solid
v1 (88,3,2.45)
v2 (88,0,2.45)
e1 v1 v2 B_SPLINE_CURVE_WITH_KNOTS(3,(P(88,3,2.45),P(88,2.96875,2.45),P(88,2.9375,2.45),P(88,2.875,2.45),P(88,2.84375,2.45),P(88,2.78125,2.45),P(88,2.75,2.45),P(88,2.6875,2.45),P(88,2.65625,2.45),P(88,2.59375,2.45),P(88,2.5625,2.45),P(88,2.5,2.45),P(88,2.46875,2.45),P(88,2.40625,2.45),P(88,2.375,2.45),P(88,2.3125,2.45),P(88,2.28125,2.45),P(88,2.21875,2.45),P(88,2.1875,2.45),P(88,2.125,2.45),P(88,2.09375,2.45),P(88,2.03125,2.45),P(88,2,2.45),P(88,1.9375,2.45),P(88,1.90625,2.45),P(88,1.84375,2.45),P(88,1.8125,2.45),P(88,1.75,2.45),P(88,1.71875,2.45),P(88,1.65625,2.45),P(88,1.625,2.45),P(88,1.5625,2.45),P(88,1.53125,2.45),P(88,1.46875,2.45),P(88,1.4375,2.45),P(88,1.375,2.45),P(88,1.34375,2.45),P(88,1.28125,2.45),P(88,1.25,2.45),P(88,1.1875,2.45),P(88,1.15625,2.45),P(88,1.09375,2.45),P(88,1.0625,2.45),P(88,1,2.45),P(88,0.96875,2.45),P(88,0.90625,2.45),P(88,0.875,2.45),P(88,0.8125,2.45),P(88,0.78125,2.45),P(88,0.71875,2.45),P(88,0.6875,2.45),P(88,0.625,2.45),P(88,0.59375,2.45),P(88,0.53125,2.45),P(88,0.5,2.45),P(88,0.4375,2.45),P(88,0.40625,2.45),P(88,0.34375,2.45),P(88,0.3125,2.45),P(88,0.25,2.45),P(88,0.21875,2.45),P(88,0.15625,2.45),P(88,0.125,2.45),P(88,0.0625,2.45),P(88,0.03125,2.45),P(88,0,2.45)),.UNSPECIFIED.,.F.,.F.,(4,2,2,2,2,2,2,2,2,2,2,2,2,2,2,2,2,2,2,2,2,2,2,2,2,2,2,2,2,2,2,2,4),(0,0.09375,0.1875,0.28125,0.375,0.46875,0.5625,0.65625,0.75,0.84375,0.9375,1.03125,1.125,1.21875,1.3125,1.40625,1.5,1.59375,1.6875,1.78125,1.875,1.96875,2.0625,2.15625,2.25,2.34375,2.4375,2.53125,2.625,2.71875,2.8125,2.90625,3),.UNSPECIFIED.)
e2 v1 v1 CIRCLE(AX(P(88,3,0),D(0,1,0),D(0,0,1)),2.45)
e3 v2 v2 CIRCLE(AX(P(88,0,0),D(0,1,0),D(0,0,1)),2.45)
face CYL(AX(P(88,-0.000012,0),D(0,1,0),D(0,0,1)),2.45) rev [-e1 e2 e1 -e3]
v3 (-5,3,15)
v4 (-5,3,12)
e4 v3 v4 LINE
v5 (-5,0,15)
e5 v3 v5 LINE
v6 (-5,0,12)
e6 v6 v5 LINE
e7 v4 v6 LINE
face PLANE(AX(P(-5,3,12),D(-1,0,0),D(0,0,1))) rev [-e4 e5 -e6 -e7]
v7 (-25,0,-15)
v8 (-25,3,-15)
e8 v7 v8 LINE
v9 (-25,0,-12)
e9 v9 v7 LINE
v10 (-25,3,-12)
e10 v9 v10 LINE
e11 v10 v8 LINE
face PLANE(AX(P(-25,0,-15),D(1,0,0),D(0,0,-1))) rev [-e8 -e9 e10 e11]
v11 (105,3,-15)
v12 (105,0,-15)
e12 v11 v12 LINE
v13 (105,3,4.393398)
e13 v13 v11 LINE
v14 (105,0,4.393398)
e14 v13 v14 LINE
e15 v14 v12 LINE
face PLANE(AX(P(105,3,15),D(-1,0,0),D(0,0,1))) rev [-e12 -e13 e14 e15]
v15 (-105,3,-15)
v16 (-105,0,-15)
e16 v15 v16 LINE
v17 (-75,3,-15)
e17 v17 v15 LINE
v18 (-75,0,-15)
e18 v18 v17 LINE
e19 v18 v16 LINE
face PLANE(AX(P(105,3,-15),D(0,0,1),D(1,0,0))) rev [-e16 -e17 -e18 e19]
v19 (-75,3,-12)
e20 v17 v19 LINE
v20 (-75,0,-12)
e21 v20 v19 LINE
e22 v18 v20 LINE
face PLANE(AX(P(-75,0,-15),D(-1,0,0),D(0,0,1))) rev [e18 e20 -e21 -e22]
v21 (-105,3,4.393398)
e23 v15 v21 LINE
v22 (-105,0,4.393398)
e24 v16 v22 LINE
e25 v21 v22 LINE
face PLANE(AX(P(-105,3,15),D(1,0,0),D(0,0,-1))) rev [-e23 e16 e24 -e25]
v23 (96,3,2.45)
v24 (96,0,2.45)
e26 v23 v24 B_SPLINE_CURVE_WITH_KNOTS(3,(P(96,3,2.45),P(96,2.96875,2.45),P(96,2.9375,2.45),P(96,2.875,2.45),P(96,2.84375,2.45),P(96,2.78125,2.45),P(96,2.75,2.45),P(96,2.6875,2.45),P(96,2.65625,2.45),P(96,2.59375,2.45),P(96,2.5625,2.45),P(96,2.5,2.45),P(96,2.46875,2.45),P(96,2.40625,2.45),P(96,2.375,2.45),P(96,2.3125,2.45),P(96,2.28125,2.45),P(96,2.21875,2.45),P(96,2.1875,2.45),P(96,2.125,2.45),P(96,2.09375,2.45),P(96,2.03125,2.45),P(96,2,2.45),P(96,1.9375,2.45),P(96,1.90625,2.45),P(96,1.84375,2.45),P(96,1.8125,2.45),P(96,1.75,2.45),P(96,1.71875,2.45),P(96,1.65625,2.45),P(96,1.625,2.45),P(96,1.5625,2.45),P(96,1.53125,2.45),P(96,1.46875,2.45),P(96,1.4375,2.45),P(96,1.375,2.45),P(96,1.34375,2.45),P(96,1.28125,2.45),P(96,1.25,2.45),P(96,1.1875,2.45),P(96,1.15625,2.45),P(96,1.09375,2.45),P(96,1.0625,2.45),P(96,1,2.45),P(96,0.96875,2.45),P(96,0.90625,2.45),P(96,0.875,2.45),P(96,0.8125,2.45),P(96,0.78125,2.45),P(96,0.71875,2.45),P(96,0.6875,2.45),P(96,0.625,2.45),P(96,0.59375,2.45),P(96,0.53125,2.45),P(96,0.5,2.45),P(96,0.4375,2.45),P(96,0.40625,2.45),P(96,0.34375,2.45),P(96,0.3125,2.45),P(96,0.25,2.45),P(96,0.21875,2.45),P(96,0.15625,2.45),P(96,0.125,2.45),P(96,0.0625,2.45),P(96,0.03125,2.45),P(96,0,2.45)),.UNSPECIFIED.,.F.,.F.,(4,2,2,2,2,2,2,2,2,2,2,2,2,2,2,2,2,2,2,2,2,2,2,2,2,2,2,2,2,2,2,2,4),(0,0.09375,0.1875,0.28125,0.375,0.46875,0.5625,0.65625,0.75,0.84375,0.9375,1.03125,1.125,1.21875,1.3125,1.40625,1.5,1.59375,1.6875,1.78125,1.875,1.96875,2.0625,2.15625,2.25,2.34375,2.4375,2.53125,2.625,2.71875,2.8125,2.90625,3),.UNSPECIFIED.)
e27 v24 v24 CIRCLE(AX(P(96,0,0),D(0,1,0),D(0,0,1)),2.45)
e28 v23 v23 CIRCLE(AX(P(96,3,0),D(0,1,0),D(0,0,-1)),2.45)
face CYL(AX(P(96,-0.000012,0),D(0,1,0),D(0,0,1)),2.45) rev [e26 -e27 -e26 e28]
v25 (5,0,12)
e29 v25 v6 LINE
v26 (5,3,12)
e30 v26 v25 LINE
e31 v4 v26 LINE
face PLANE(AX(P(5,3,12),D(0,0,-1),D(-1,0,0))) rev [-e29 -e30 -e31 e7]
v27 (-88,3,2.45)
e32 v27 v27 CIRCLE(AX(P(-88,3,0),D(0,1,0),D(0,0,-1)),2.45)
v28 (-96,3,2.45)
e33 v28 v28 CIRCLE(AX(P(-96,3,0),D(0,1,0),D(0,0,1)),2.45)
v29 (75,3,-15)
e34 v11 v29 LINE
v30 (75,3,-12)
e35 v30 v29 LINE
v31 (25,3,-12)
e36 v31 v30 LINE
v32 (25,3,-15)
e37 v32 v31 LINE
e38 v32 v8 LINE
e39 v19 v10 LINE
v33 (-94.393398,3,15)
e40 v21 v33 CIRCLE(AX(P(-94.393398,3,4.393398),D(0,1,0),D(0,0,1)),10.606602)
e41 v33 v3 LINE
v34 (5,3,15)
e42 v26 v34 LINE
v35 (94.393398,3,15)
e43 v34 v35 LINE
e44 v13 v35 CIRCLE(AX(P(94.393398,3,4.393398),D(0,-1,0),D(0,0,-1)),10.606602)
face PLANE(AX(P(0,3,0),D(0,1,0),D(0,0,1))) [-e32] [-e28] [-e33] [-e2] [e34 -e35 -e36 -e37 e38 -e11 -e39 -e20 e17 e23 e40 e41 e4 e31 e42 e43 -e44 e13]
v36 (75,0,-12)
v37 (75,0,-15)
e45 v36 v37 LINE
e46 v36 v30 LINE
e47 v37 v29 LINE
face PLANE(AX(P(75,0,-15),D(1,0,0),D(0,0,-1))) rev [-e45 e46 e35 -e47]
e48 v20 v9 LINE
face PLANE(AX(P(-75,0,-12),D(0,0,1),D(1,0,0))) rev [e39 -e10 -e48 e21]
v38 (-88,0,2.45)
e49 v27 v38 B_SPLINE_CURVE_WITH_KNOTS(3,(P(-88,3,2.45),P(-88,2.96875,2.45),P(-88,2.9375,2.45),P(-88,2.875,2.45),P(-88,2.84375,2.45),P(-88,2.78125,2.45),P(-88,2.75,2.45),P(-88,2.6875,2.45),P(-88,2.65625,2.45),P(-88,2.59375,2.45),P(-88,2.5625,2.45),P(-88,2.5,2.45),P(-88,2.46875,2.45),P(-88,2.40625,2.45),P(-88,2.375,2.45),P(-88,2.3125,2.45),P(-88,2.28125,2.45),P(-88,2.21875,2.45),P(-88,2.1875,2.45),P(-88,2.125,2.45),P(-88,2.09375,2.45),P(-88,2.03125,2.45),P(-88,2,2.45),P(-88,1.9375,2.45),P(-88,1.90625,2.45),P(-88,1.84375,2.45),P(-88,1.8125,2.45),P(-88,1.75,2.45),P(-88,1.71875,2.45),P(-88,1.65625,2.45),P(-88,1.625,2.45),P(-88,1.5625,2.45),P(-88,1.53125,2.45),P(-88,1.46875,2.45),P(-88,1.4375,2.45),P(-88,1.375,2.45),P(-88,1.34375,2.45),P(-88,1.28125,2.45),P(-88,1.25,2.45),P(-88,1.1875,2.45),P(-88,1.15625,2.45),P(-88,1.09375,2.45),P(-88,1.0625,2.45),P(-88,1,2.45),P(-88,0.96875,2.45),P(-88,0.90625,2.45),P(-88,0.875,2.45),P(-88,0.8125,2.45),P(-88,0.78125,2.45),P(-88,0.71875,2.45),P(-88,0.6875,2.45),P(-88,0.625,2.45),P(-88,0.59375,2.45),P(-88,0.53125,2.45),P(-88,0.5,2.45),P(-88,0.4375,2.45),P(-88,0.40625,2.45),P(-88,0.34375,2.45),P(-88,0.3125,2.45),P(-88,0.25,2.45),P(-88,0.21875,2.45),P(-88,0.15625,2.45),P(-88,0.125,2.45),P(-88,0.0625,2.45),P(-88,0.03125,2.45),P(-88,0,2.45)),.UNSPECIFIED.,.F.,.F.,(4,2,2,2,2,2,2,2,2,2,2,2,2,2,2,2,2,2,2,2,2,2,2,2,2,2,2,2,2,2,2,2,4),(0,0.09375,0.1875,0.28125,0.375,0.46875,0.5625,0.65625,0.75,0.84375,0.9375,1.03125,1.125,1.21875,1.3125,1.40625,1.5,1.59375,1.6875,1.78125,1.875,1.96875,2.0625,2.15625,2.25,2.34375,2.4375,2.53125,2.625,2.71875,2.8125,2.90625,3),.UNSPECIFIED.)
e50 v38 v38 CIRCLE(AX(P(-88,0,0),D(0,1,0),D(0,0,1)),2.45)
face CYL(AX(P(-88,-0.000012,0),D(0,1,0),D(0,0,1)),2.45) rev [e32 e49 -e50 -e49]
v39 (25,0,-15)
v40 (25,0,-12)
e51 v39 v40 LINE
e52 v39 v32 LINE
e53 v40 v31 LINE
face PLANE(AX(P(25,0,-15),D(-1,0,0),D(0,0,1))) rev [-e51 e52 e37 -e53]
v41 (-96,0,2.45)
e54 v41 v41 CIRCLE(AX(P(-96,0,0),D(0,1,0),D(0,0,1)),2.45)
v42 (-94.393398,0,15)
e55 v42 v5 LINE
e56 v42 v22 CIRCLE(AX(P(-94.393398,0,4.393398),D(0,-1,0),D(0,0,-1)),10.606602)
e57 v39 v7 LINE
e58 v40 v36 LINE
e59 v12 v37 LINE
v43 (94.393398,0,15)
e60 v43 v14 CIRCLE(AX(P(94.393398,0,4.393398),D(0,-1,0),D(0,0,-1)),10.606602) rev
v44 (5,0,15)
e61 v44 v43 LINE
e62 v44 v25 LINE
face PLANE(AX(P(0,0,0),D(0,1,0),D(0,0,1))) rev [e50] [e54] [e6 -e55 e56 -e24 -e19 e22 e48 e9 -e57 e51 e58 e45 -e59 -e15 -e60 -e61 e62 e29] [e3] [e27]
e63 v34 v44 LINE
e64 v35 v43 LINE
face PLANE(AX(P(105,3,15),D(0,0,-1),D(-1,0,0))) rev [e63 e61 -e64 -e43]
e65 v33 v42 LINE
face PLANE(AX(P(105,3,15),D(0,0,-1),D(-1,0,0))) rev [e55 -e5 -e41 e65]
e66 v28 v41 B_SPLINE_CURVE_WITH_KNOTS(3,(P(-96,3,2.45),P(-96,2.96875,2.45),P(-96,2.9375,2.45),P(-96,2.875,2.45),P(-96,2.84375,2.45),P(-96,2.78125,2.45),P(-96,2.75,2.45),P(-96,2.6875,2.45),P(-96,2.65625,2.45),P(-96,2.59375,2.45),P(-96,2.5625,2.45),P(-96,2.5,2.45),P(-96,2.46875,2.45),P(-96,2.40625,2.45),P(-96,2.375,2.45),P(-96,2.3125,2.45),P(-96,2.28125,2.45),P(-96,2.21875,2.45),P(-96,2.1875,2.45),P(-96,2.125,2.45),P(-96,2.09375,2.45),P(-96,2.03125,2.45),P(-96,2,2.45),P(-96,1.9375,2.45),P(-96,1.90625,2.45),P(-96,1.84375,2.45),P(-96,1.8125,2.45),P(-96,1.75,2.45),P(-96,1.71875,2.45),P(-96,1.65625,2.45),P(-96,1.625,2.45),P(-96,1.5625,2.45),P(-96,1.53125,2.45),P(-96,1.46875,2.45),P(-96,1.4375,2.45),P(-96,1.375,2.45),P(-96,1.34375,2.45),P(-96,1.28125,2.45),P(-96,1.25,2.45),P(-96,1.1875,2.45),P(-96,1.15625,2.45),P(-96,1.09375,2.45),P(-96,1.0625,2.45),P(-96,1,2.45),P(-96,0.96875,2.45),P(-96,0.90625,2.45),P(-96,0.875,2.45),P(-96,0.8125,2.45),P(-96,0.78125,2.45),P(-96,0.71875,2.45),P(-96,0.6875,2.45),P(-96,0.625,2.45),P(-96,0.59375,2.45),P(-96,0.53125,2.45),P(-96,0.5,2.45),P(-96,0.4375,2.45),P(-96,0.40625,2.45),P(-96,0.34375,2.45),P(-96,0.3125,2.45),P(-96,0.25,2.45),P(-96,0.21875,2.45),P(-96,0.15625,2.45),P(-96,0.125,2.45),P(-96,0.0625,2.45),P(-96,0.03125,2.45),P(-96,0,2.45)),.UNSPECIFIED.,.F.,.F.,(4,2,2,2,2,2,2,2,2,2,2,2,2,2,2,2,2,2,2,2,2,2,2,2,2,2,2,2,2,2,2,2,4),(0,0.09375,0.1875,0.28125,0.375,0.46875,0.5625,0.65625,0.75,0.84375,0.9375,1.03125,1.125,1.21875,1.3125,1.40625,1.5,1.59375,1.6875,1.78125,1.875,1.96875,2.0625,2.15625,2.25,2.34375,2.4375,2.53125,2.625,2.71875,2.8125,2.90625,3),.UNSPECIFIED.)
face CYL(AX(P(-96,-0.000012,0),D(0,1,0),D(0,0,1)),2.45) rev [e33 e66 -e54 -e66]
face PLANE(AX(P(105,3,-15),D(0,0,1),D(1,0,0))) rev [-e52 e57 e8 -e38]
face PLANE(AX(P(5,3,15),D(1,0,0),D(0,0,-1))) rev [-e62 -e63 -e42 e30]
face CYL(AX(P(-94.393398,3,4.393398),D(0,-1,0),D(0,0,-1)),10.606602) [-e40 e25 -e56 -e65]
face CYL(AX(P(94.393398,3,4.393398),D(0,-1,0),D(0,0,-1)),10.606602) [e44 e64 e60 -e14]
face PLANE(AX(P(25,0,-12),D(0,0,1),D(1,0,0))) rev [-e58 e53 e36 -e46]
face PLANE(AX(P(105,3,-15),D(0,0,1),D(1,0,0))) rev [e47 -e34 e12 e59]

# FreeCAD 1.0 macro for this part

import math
import FreeCAD as App
import Part
import Sketcher
Q = App.Units.Quantity

doc = App.newDocument("Part")
params = doc.addObject("Spreadsheet::Sheet", "Params")
for row, (alias, value) in enumerate([
    ("sketch1_width", "210 mm"),
    ("sketch1_height", "30 mm"),
    ("pad1_length", "3 mm"),
    ("sketch2_width", "50 mm"),
    ("sketch2_height", "3 mm"),
    ("sketch3_width", "10 mm"),
    ("sketch3_height", "3 mm"),
    ("sketch4_diameter", "4.9 mm"),
], start=1):
    params.set(f"A{row}", alias)
    params.set(f"B{row}", "=" + value)
    params.setAlias(f"B{row}", alias)

body = doc.addObject("PartDesign::Body", "Body")

# Sketch on XZ plane
sketch1 = doc.addObject("Sketcher::SketchObject", "Sketch")
body.addObject(sketch1)
sketch1.AttachmentSupport = (doc.XZ_Plane, [""])
sketch1.MapMode = "FlatFace"
sketch1.addGeometry([
    Part.LineSegment(App.Vector(-105, -15, 0), App.Vector(-105, 15, 0)),
    Part.LineSegment(App.Vector(-105, 15, 0), App.Vector(105, 15, 0)),
    Part.LineSegment(App.Vector(105, 15, 0), App.Vector(105, -15, 0)),
    Part.LineSegment(App.Vector(105, -15, 0), App.Vector(-105, -15, 0)),
], False)
sketch1.addConstraint([
    Sketcher.Constraint("Coincident", 0, 2, 1, 1),
    Sketcher.Constraint("Coincident", 1, 2, 2, 1),
    Sketcher.Constraint("Coincident", 2, 2, 3, 1),
    Sketcher.Constraint("Coincident", 3, 2, 0, 1),
    Sketcher.Constraint("Vertical", 0),
    Sketcher.Constraint("Horizontal", 1),
    Sketcher.Constraint("Vertical", 2),
    Sketcher.Constraint("Horizontal", 3),
    Sketcher.Constraint("Symmetric", 0, 2, 2, 2, -1, 1),
    Sketcher.Constraint("DistanceX", 1, 1, 1, 2, Q("210 mm")),
    Sketcher.Constraint("DistanceY", 0, 1, 0, 2, Q("30 mm")),
])
sketch1.setExpression("Constraints[9]", "Params.sketch1_width")
sketch1.setExpression("Constraints[10]", "Params.sketch1_height")
pad1 = doc.addObject("PartDesign::Pad", "Pad")
body.addObject(pad1)
pad1.Profile = sketch1
pad1.setExpression("Length", "Params.pad1_length")
pad1.Reversed = True

# Sketch on XZ plane
sketch2 = doc.addObject("Sketcher::SketchObject", "Sketch001")
body.addObject(sketch2)
sketch2.AttachmentSupport = (doc.XZ_Plane, [""])
sketch2.MapMode = "FlatFace"
sketch2.AttachmentOffset = App.Placement(App.Vector(0, 0, -3), App.Rotation())
sketch2.addGeometry([
    Part.LineSegment(App.Vector(-75, -15, 0), App.Vector(-75, -12, 0)),  # 0
    Part.LineSegment(App.Vector(-75, -12, 0), App.Vector(-25, -12, 0)),  # 1
    Part.LineSegment(App.Vector(-25, -12, 0), App.Vector(-25, -15, 0)),  # 2
    Part.LineSegment(App.Vector(-25, -15, 0), App.Vector(-75, -15, 0)),  # 3
    Part.LineSegment(App.Vector(25, -15, 0), App.Vector(25, -12, 0)),  # 4
    Part.LineSegment(App.Vector(25, -12, 0), App.Vector(75, -12, 0)),  # 5
    Part.LineSegment(App.Vector(75, -12, 0), App.Vector(75, -15, 0)),  # 6
    Part.LineSegment(App.Vector(75, -15, 0), App.Vector(25, -15, 0)),  # 7
], False)
sketch2.addConstraint([
    Sketcher.Constraint("Coincident", 0, 2, 1, 1),
    Sketcher.Constraint("Coincident", 1, 2, 2, 1),
    Sketcher.Constraint("Coincident", 2, 2, 3, 1),
    Sketcher.Constraint("Coincident", 3, 2, 0, 1),
    Sketcher.Constraint("Coincident", 4, 2, 5, 1),
    Sketcher.Constraint("Coincident", 5, 2, 6, 1),
    Sketcher.Constraint("Coincident", 6, 2, 7, 1),
    Sketcher.Constraint("Coincident", 7, 2, 4, 1),
    Sketcher.Constraint("Vertical", 0),
    Sketcher.Constraint("Horizontal", 1),
    Sketcher.Constraint("Vertical", 2),
    Sketcher.Constraint("Horizontal", 3),
    Sketcher.Constraint("Vertical", 4),
    Sketcher.Constraint("Horizontal", 5),
    Sketcher.Constraint("Vertical", 6),
    Sketcher.Constraint("Horizontal", 7),
    Sketcher.Constraint("Symmetric", 1, 2, 4, 2, -2),
    Sketcher.Constraint("Symmetric", 3, 2, 6, 2, -2),
    Sketcher.Constraint("DistanceX", 1, 1, 1, 2, Q("50 mm")),
    Sketcher.Constraint("DistanceY", 0, 1, 0, 2, Q("3 mm")),
    Sketcher.Constraint("DistanceX", 0, 2, -1, 1, Q("75 mm")),
    Sketcher.Constraint("DistanceY", 0, 2, -1, 1, Q("12 mm")),
])
sketch2.setExpression("Constraints[18]", "Params.sketch2_width")
sketch2.setExpression("Constraints[19]", "Params.sketch2_height")
pocket1 = doc.addObject("PartDesign::Pocket", "Pocket")
body.addObject(pocket1)
pocket1.Profile = sketch2
pocket1.Type = "ThroughAll"
pocket1.Midplane = True

# Sketch on XZ plane
sketch3 = doc.addObject("Sketcher::SketchObject", "Sketch002")
body.addObject(sketch3)
sketch3.AttachmentSupport = (doc.XZ_Plane, [""])
sketch3.MapMode = "FlatFace"
sketch3.addGeometry([
    Part.LineSegment(App.Vector(5, 15, 0), App.Vector(-5, 15, 0)),
    Part.LineSegment(App.Vector(-5, 15, 0), App.Vector(-5, 12, 0)),
    Part.LineSegment(App.Vector(-5, 12, 0), App.Vector(5, 12, 0)),
    Part.LineSegment(App.Vector(5, 12, 0), App.Vector(5, 15, 0)),
], False)
sketch3.addConstraint([
    Sketcher.Constraint("Coincident", 0, 2, 1, 1),
    Sketcher.Constraint("Coincident", 1, 2, 2, 1),
    Sketcher.Constraint("Coincident", 2, 2, 3, 1),
    Sketcher.Constraint("Coincident", 3, 2, 0, 1),
    Sketcher.Constraint("Horizontal", 0),
    Sketcher.Constraint("Vertical", 1),
    Sketcher.Constraint("Horizontal", 2),
    Sketcher.Constraint("Vertical", 3),
    Sketcher.Constraint("DistanceX", 0, 2, 0, 1, Q("10 mm")),
    Sketcher.Constraint("DistanceY", 1, 2, 1, 1, Q("3 mm")),
    Sketcher.Constraint("DistanceX", 0, 2, -1, 1, Q("5 mm")),
    Sketcher.Constraint("DistanceY", -1, 1, 0, 2, Q("15 mm")),
])
sketch3.setExpression("Constraints[8]", "Params.sketch3_width")
sketch3.setExpression("Constraints[9]", "Params.sketch3_height")
pocket2 = doc.addObject("PartDesign::Pocket", "Pocket001")
body.addObject(pocket2)
pocket2.Profile = sketch3
pocket2.Type = "ThroughAll"
pocket2.Midplane = True

# Sketch on XZ plane
sketch4 = doc.addObject("Sketcher::SketchObject", "Sketch003")
body.addObject(sketch4)
sketch4.AttachmentSupport = (doc.XZ_Plane, [""])
sketch4.MapMode = "FlatFace"
sketch4.addGeometry([
    Part.Circle(App.Vector(-96, 0, 0), App.Vector(0, 0, 1), 2.45),
    Part.Circle(App.Vector(-88, 0, 0), App.Vector(0, 0, 1), 2.45),
    Part.Circle(App.Vector(88, 0, 0), App.Vector(0, 0, 1), 2.45),
    Part.Circle(App.Vector(96, 0, 0), App.Vector(0, 0, 1), 2.45),
], False)
sketch4.addConstraint([
    Sketcher.Constraint("Equal", 0, 1),
    Sketcher.Constraint("Equal", 1, 2),
    Sketcher.Constraint("Equal", 2, 3),
    Sketcher.Constraint("Symmetric", 1, 3, 2, 3, -1, 1),
    Sketcher.Constraint("Symmetric", 0, 3, 3, 3, -1, 1),
    Sketcher.Constraint("PointOnObject", 0, 3, -1),
    Sketcher.Constraint("PointOnObject", 1, 3, -1),
    Sketcher.Constraint("Diameter", 0, Q("4.9 mm")),
    Sketcher.Constraint("DistanceX", 0, 3, -1, 1, Q("96 mm")),
    Sketcher.Constraint("DistanceX", 1, 3, -1, 1, Q("88 mm")),
])
sketch4.setExpression("Constraints[7]", "Params.sketch4_diameter")
pocket3 = doc.addObject("PartDesign::Pocket", "Pocket002")
body.addObject(pocket3)
pocket3.Profile = sketch4
pocket3.Type = "ThroughAll"
pocket3.Midplane = True

# Sketch on XZ plane
sketch5 = doc.addObject("Sketcher::SketchObject", "Sketch004")
body.addObject(sketch5)
sketch5.AttachmentSupport = (doc.XZ_Plane, [""])
sketch5.MapMode = "FlatFace"
sketch5.addGeometry([
    Part.LineSegment(App.Vector(-105, 4.393398, 0), App.Vector(-105, 15, 0)),  # 0
    Part.LineSegment(App.Vector(-105, 15, 0), App.Vector(-94.393398, 15, 0)),  # 1
    Part.ArcOfCircle(Part.Circle(App.Vector(-94.393398, 4.393398, 0), App.Vector(0, 0, 1), 10.606602), math.radians(90), math.radians(180)),  # 2
    Part.LineSegment(App.Vector(94.393398, 15, 0), App.Vector(105, 15, 0)),  # 3
    Part.LineSegment(App.Vector(105, 15, 0), App.Vector(105, 4.393398, 0)),  # 4
    Part.ArcOfCircle(Part.Circle(App.Vector(94.393398, 4.393398, 0), App.Vector(0, 0, 1), 10.606602), math.radians(0), math.radians(90)),  # 5
], False)
sketch5.addConstraint([
    Sketcher.Constraint("Coincident", 0, 2, 1, 1),
    Sketcher.Constraint("Tangent", 1, 2, 2, 1),
    Sketcher.Constraint("Tangent", 2, 2, 0, 1),
    Sketcher.Constraint("Coincident", 3, 2, 4, 1),
    Sketcher.Constraint("Tangent", 4, 2, 5, 1),
    Sketcher.Constraint("Tangent", 5, 2, 3, 1),
    Sketcher.Constraint("Vertical", 0),
    Sketcher.Constraint("Horizontal", 1),
    Sketcher.Constraint("Horizontal", 3),
    Sketcher.Constraint("Vertical", 4),
    Sketcher.Constraint("Equal", 2, 5),
    Sketcher.Constraint("Symmetric", 2, 3, 5, 3, -2),
    Sketcher.Constraint("DistanceX", 0, 2, -1, 1, Q("105 mm")),
    Sketcher.Constraint("DistanceY", -1, 1, 0, 2, Q("15 mm")),
    Sketcher.Constraint("Radius", 2, Q("10.606602 mm")),
])
pocket4 = doc.addObject("PartDesign::Pocket", "Pocket003")
body.addObject(pocket4)
pocket4.Profile = sketch5
pocket4.Type = "ThroughAll"
pocket4.Midplane = True

doc.recompute()
